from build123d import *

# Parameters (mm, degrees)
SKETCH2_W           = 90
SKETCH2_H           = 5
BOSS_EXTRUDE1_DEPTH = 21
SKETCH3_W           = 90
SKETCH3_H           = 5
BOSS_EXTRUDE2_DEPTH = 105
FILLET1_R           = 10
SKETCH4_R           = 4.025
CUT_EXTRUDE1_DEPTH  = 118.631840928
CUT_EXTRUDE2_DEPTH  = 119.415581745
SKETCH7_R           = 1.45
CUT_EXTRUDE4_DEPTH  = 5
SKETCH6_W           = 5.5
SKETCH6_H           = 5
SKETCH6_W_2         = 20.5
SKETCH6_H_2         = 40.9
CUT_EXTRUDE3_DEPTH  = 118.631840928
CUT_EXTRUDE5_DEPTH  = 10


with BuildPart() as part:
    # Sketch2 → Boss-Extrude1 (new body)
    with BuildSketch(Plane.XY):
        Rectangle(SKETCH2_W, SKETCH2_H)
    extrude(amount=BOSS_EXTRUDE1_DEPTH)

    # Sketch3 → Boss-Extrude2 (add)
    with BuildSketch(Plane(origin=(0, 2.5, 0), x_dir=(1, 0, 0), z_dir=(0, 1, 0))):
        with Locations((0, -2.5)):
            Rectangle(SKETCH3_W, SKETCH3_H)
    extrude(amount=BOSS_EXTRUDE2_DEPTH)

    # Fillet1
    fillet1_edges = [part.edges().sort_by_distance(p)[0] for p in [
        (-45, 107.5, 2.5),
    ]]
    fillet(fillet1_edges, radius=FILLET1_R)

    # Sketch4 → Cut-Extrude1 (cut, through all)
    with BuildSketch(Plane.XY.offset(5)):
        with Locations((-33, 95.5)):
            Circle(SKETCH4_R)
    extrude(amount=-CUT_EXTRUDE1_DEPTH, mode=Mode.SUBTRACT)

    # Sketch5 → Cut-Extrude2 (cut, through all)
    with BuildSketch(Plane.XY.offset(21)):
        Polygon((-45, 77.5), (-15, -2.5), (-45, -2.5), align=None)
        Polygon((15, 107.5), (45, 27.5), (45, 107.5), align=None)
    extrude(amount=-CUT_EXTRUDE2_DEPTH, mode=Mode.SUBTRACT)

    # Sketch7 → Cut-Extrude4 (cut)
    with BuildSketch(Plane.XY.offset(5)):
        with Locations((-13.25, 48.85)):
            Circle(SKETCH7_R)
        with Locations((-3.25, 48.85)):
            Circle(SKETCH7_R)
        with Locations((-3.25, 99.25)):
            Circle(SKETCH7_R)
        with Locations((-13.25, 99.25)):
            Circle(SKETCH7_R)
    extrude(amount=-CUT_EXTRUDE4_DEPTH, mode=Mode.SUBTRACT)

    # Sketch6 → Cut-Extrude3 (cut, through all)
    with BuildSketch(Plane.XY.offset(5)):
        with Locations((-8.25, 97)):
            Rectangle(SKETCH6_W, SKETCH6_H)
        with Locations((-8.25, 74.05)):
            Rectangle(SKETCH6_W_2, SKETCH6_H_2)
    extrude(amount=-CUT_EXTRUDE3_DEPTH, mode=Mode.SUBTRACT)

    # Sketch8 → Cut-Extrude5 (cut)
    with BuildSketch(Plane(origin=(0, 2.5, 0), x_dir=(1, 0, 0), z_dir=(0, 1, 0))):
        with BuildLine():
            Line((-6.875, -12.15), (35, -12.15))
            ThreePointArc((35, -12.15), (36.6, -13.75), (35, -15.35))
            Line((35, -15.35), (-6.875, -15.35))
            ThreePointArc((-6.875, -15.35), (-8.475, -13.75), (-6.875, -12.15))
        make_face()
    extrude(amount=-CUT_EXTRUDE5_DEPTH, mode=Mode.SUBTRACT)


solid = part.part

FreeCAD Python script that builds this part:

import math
import FreeCAD as App
import Part
import Sketcher
from FreeCAD import Vector
Q = App.Units.Quantity


def edges_at(feature, points):
    """Names of the edges that pass closest to the given points."""
    edges = feature.Shape.Edges
    near = lambda p: min(range(len(edges)), key=lambda i: edges[i].distToShape(Part.Vertex(*p))[0])
    return sorted({f"Edge{near(p) + 1}" for p in points})

doc = App.newDocument("Part")
body = doc.addObject("PartDesign::Body", "Body")

# Sketch on XY plane
sketch1 = body.newObject("Sketcher::SketchObject", "Sketch")
sketch1.AttachmentSupport = (doc.getObject("XY_Plane"), [""])
sketch1.MapMode = "FlatFace"
sketch1.addGeometry([
    Part.LineSegment(Vector(-45, 2, 0), Vector(-45, -2, 0)),
    Part.LineSegment(Vector(-45, -2, 0), Vector(45, -2, 0)),
    Part.LineSegment(Vector(45, -2, 0), Vector(45, 2, 0)),
    Part.LineSegment(Vector(45, 2, 0), Vector(-45, 2, 0)),
], False)
sketch1.addConstraint([
    Sketcher.Constraint("Coincident", 0, 2, 1, 1),
    Sketcher.Constraint("Coincident", 1, 2, 2, 1),
    Sketcher.Constraint("Coincident", 2, 2, 3, 1),
    Sketcher.Constraint("Coincident", 3, 2, 0, 1),
    Sketcher.Constraint("Vertical", 0),
    Sketcher.Constraint("Horizontal", 1),
    Sketcher.Constraint("Vertical", 2),
    Sketcher.Constraint("Horizontal", 3),
    Sketcher.Constraint("Symmetric", 0, 2, 2, 2, -1, 1),
    Sketcher.Constraint("DistanceX", 1, 1, 1, 2, Q("90 mm")),
    Sketcher.Constraint("DistanceY", 0, 2, 0, 1, Q("5 mm")),
])
pad1 = body.newObject("PartDesign::Pad", "Pad")
pad1.Profile = sketch1
pad1.Length = 21

# Sketch on XZ plane
sketch2 = body.newObject("Sketcher::SketchObject", "Sketch001")
sketch2.AttachmentSupport = (doc.getObject("XZ_Plane"), [""])
sketch2.MapMode = "FlatFace"
sketch2.AttachmentOffset = App.Placement(Vector(0, 0, -2.5), App.Rotation())
sketch2.addGeometry([
    Part.LineSegment(Vector(-45, 0, 0), Vector(-45, 5, 0)),
    Part.LineSegment(Vector(-45, 5, 0), Vector(45, 5, 0)),
    Part.LineSegment(Vector(45, 5, 0), Vector(45, 0, 0)),
    Part.LineSegment(Vector(45, 0, 0), Vector(-45, 0, 0)),
], False)
sketch2.addConstraint([
    Sketcher.Constraint("Coincident", 0, 2, 1, 1),
    Sketcher.Constraint("Coincident", 1, 2, 2, 1),
    Sketcher.Constraint("Coincident", 2, 2, 3, 1),
    Sketcher.Constraint("Coincident", 3, 2, 0, 1),
    Sketcher.Constraint("Vertical", 0),
    Sketcher.Constraint("Horizontal", 1),
    Sketcher.Constraint("Vertical", 2),
    Sketcher.Constraint("Horizontal", 3),
    Sketcher.Constraint("Symmetric", 2, 2, 3, 2, -1, 1),
    Sketcher.Constraint("DistanceX", 1, 1, 1, 2, Q("90 mm")),
    Sketcher.Constraint("DistanceY", 0, 1, 0, 2, Q("5 mm")),
])
pad2 = body.newObject("PartDesign::Pad", "Pad001")
pad2.Profile = sketch2
pad2.Length = 105
pad2.Reversed = True
doc.recompute()

fillet = body.newObject("PartDesign::Fillet", "Fillet")
fillet.Base = (pad2, edges_at(pad2, [(-45, 107.5, 2.5)]))
fillet.Radius = 10

# Sketch on XY plane
sketch3 = body.newObject("Sketcher::SketchObject", "Sketch002")
sketch3.AttachmentSupport = (doc.getObject("XY_Plane"), [""])
sketch3.MapMode = "FlatFace"
sketch3.AttachmentOffset = App.Placement(Vector(0, 0, 5), App.Rotation())
sketch3.addGeometry(Part.Circle(Vector(-33, 95.5, 0), Vector(0, 0, 1), 4), False)
sketch3.addConstraint([
    Sketcher.Constraint("Diameter", 0, Q("8.05 mm")),
    Sketcher.Constraint("DistanceX", 0, 3, -1, 1, Q("33 mm")),
    Sketcher.Constraint("DistanceY", -1, 1, 0, 3, Q("95.5 mm")),
])
pocket1 = body.newObject("PartDesign::Pocket", "Pocket")
pocket1.Profile = sketch3
pocket1.Type = "ThroughAll"

# Sketch on XY plane
sketch4 = body.newObject("Sketcher::SketchObject", "Sketch003")
sketch4.AttachmentSupport = (doc.getObject("XY_Plane"), [""])
sketch4.MapMode = "FlatFace"
sketch4.AttachmentOffset = App.Placement(Vector(0, 0, 21), App.Rotation())
sketch4.addGeometry([
    Part.LineSegment(Vector(-15, -2, 0), Vector(-45, 78, 0)),  # 0
    Part.LineSegment(Vector(-45, 78, 0), Vector(-45, -2, 0)),  # 1
    Part.LineSegment(Vector(-45, -2, 0), Vector(-15, -2, 0)),  # 2
    Part.LineSegment(Vector(15, 108, 0), Vector(45, 28, 0)),  # 3
    Part.LineSegment(Vector(45, 28, 0), Vector(45, 108, 0)),  # 4
    Part.LineSegment(Vector(45, 108, 0), Vector(15, 108, 0)),  # 5
], False)
sketch4.addConstraint([
    Sketcher.Constraint("Coincident", 0, 2, 1, 1),
    Sketcher.Constraint("Coincident", 1, 2, 2, 1),
    Sketcher.Constraint("Coincident", 2, 2, 0, 1),
    Sketcher.Constraint("Coincident", 3, 2, 4, 1),
    Sketcher.Constraint("Coincident", 4, 2, 5, 1),
    Sketcher.Constraint("Coincident", 5, 2, 3, 1),
    Sketcher.Constraint("Vertical", 1),
    Sketcher.Constraint("Horizontal", 2),
    Sketcher.Constraint("Vertical", 4),
    Sketcher.Constraint("Horizontal", 5),
    Sketcher.Constraint("Parallel", 0, 3),
    Sketcher.Constraint("Equal", 2, 5),
    Sketcher.Constraint("DistanceX", 2, 1, 2, 2, Q("30 mm")),
    Sketcher.Constraint("DistanceY", 1, 2, 1, 1, Q("80 mm")),
    Sketcher.Constraint("DistanceX", 0, 2, -1, 1, Q("45 mm")),
    Sketcher.Constraint("DistanceX", -1, 1, 3, 2, Q("45 mm")),
    Sketcher.Constraint("DistanceY", 2, 2, 3, 2, Q("30 mm")),
    Sketcher.Constraint("DistanceY", -1, 1, 0, 2, Q("77.5 mm")),
])
pocket2 = body.newObject("PartDesign::Pocket", "Pocket001")
pocket2.Profile = sketch4
pocket2.Type = "ThroughAll"

# Sketch on XY plane
sketch5 = body.newObject("Sketcher::SketchObject", "Sketch004")
sketch5.AttachmentSupport = (doc.getObject("XY_Plane"), [""])
sketch5.MapMode = "FlatFace"
sketch5.AttachmentOffset = App.Placement(Vector(0, 0, 5), App.Rotation())
sketch5.addGeometry([
    Part.Circle(Vector(-13.2, 48.9, 0), Vector(0, 0, 1), 1.4),
    Part.Circle(Vector(-3.2, 48.9, 0), Vector(0, 0, 1), 1.4),
    Part.Circle(Vector(-3.2, 99.2, 0), Vector(0, 0, 1), 1.4),
    Part.Circle(Vector(-13.2, 99.2, 0), Vector(0, 0, 1), 1.4),
], False)
sketch5.addConstraint([
    Sketcher.Constraint("Equal", 0, 1),
    Sketcher.Constraint("Equal", 1, 2),
    Sketcher.Constraint("Equal", 2, 3),
    Sketcher.Constraint("Horizontal", 0, 3, 1, 3),
    Sketcher.Constraint("Horizontal", 2, 3, 3, 3),
    Sketcher.Constraint("Vertical", 1, 3, 2, 3),
    Sketcher.Constraint("Vertical", 0, 3, 3, 3),
    Sketcher.Constraint("Diameter", 0, Q("2.9 mm")),
    Sketcher.Constraint("DistanceX", 0, 3, 1, 3, Q("10 mm")),
    Sketcher.Constraint("DistanceY", 1, 3, 2, 3, Q("50.4 mm")),
    Sketcher.Constraint("DistanceX", 0, 3, -1, 1, Q("13.25 mm")),
    Sketcher.Constraint("DistanceY", -1, 1, 0, 3, Q("48.85 mm")),
])
pocket3 = body.newObject("PartDesign::Pocket", "Pocket002")
pocket3.Profile = sketch5
pocket3.Length = 5

# Sketch on XY plane
sketch6 = body.newObject("Sketcher::SketchObject", "Sketch005")
sketch6.AttachmentSupport = (doc.getObject("XY_Plane"), [""])
sketch6.MapMode = "FlatFace"
sketch6.AttachmentOffset = App.Placement(Vector(0, 0, 5), App.Rotation())
sketch6.addGeometry([
    Part.LineSegment(Vector(-11, 100, 0), Vector(-11, 94, 0)),  # 0
    Part.LineSegment(Vector(-11, 94, 0), Vector(-18, 94, 0)),  # 1
    Part.LineSegment(Vector(-18, 94, 0), Vector(-18, 54, 0)),  # 2
    Part.LineSegment(Vector(-18, 54, 0), Vector(2, 54, 0)),  # 3
    Part.LineSegment(Vector(2, 54, 0), Vector(2, 94, 0)),  # 4
    Part.LineSegment(Vector(2, 94, 0), Vector(-6, 94, 0)),  # 5
    Part.LineSegment(Vector(-6, 94, 0), Vector(-6, 100, 0)),  # 6
    Part.LineSegment(Vector(-6, 100, 0), Vector(-11, 100, 0)),  # 7
], False)
sketch6.addConstraint([
    Sketcher.Constraint("Coincident", 0, 2, 1, 1),
    Sketcher.Constraint("Coincident", 1, 2, 2, 1),
    Sketcher.Constraint("Coincident", 2, 2, 3, 1),
    Sketcher.Constraint("Coincident", 3, 2, 4, 1),
    Sketcher.Constraint("Coincident", 4, 2, 5, 1),
    Sketcher.Constraint("Coincident", 5, 2, 6, 1),
    Sketcher.Constraint("Coincident", 6, 2, 7, 1),
    Sketcher.Constraint("Coincident", 7, 2, 0, 1),
    Sketcher.Constraint("Vertical", 0),
    Sketcher.Constraint("Horizontal", 1),
    Sketcher.Constraint("Vertical", 2),
    Sketcher.Constraint("Horizontal", 3),
    Sketcher.Constraint("Vertical", 4),
    Sketcher.Constraint("Horizontal", 5),
    Sketcher.Constraint("Vertical", 6),
    Sketcher.Constraint("Horizontal", 7),
    Sketcher.Constraint("Horizontal", 1, 2, 4, 2),
    Sketcher.Constraint("Equal", 1, 5),
    Sketcher.Constraint("DistanceY", 0, 2, 0, 1, Q("5 mm")),
    Sketcher.Constraint("DistanceX", 1, 2, 1, 1, Q("7.5 mm")),
    Sketcher.Constraint("DistanceX", 3, 1, 3, 2, Q("20.5 mm")),
    Sketcher.Constraint("DistanceY", 2, 2, 2, 1, Q("40.9 mm")),
    Sketcher.Constraint("DistanceX", 0, 2, -1, 1, Q("11 mm")),
    Sketcher.Constraint("DistanceY", -1, 1, 0, 2, Q("94.5 mm")),
])
pocket4 = body.newObject("PartDesign::Pocket", "Pocket003")
pocket4.Profile = sketch6
pocket4.Type = "ThroughAll"

# Sketch on XZ plane
sketch7 = body.newObject("Sketcher::SketchObject", "Sketch006")
sketch7.AttachmentSupport = (doc.getObject("XZ_Plane"), [""])
sketch7.MapMode = "FlatFace"
sketch7.AttachmentOffset = App.Placement(Vector(0, 0, -2.5), App.Rotation())
sketch7.addGeometry([
    Part.LineSegment(Vector(35, 12.2, 0), Vector(-6.9, 12.2, 0)),
    Part.ArcOfCircle(Part.Circle(Vector(-6.9, 13.8, 0), Vector(0, 0, 1), 1.6), math.radians(90), math.radians(270)),
    Part.LineSegment(Vector(-6.9, 15.3, 0), Vector(35, 15.3, 0)),
    Part.ArcOfCircle(Part.Circle(Vector(35, 13.8, 0), Vector(0, 0, 1), 1.6), math.radians(-90), math.radians(90)),
], False)
sketch7.addConstraint([
    Sketcher.Constraint("Tangent", 0, 2, 1, 2),
    Sketcher.Constraint("Tangent", 1, 1, 2, 1),
    Sketcher.Constraint("Tangent", 2, 2, 3, 2),
    Sketcher.Constraint("Tangent", 3, 1, 0, 1),
    Sketcher.Constraint("Horizontal", 0),
    Sketcher.Constraint("Horizontal", 2),
    Sketcher.Constraint("Radius", 1, Q("1.6 mm")),
    Sketcher.Constraint("DistanceX", -1, 1, 3, 3, Q("35 mm")),
    Sketcher.Constraint("DistanceX", 0, 2, 0, 1, Q("41.875 mm")),
    Sketcher.Constraint("DistanceY", -1, 1, 1, 3, Q("13.75 mm")),
])
pocket5 = body.newObject("PartDesign::Pocket", "Pocket004")
pocket5.Profile = sketch7
pocket5.Length = 10
pocket5.Reversed = True

doc.recompute()
